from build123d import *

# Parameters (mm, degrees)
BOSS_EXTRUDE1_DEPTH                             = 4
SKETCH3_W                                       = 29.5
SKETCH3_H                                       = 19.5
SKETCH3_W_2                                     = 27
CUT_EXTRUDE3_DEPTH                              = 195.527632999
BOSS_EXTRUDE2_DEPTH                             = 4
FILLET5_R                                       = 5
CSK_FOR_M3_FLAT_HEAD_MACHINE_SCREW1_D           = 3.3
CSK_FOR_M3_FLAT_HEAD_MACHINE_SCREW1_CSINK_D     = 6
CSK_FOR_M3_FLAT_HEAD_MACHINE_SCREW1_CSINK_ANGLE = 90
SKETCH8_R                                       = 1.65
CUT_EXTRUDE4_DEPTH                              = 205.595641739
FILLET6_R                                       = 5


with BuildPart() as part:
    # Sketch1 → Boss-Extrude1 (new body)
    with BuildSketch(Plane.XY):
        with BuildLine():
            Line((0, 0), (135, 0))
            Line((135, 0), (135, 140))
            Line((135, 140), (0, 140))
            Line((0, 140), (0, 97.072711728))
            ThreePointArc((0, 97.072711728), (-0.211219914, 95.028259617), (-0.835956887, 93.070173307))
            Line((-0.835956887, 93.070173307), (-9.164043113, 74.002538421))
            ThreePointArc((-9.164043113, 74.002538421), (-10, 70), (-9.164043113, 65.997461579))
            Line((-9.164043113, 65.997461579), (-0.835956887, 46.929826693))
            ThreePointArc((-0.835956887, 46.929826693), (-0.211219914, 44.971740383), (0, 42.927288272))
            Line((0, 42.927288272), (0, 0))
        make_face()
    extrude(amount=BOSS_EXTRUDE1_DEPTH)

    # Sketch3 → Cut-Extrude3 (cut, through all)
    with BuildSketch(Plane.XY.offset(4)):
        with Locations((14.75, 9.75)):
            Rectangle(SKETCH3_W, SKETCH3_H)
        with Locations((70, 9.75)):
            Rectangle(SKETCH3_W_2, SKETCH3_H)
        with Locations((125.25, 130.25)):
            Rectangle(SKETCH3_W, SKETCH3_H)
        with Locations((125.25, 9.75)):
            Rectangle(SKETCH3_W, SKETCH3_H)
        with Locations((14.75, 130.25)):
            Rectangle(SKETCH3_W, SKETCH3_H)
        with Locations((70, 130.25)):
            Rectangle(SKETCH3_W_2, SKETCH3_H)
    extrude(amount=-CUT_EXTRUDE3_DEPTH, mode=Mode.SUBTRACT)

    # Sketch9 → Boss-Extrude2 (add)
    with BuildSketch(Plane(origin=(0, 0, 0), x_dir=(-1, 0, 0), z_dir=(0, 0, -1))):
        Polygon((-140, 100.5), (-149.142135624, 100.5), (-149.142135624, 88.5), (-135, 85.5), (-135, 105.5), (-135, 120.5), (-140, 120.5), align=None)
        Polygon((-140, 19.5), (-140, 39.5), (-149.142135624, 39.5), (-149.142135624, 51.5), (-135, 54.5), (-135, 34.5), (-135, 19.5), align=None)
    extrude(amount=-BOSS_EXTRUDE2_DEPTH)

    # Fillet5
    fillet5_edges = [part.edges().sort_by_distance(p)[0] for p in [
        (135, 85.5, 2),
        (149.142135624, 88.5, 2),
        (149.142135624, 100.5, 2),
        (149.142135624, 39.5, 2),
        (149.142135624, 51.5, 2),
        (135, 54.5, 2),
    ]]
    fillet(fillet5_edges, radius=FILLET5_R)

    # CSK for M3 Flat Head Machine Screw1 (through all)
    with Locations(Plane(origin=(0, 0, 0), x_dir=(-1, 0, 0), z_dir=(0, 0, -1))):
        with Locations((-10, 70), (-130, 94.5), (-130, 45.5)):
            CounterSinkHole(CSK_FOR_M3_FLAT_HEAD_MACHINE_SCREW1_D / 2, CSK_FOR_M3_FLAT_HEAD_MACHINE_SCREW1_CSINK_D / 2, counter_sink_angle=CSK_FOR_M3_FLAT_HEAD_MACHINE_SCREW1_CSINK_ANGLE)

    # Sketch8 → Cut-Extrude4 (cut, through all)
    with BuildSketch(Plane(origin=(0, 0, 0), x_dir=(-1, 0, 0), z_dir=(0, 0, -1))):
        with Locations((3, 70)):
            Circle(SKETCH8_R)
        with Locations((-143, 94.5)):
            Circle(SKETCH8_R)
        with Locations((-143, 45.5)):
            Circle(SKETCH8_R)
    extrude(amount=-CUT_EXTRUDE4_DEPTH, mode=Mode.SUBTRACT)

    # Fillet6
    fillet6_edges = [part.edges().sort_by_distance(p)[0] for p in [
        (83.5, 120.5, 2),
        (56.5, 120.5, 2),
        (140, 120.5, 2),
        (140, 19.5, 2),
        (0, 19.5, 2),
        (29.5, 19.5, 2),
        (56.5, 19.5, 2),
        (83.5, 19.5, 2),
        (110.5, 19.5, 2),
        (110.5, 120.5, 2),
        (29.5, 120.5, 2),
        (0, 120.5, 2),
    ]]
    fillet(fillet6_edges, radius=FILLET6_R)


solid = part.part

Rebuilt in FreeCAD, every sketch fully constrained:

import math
import FreeCAD as App
import Part
import Sketcher
from FreeCAD import Vector


def edges_at(feature, points):
    """Names of the edges that pass closest to the given points."""
    edges = feature.Shape.Edges
    near = lambda p: min(range(len(edges)), key=lambda i: edges[i].distToShape(Part.Vertex(*p))[0])
    return sorted({f"Edge{near(p) + 1}" for p in points})

doc = App.newDocument("Part")
body = doc.addObject("PartDesign::Body", "Body")

# Sketch on XY plane
sketch1 = body.newObject("Sketcher::SketchObject", "Sketch")
sketch1.AttachmentSupport = (doc.getObject("XY_Plane"), [""])
sketch1.MapMode = "FlatFace"
sketch1.addGeometry([
    Part.LineSegment(Vector(0, 0, 0), Vector(135, 0, 0)),  # 0
    Part.LineSegment(Vector(135, 0, 0), Vector(135, 140, 0)),  # 1
    Part.LineSegment(Vector(135, 140, 0), Vector(0, 140, 0)),  # 2
    Part.LineSegment(Vector(0, 140, 0), Vector(0, 97.1, 0)),  # 3
    Part.ArcOfCircle(Part.Circle(Vector(-10, 97.1, 0), Vector(0, 0, 1), 10), math.radians(-24), math.radians(0)),  # 4
    Part.LineSegment(Vector(-0.8, 93.1, 0), Vector(-9.2, 74, 0)),  # 5
    Part.ArcOfCircle(Part.Circle(Vector(0, 70, 0), Vector(0, 0, 1), 10), math.radians(156), math.radians(204)),  # 6
    Part.LineSegment(Vector(-9.2, 66, 0), Vector(-0.8, 46.9, 0)),  # 7
    Part.ArcOfCircle(Part.Circle(Vector(-10, 42.9, 0), Vector(0, 0, 1), 10), math.radians(0), math.radians(24)),  # 8
    Part.LineSegment(Vector(0, 42.9, 0), Vector(0, 0, 0)),  # 9
], False)
sketch1.addConstraint([
    Sketcher.Constraint("Coincident", 0, 2, 1, 1),
    Sketcher.Constraint("Coincident", 1, 2, 2, 1),
    Sketcher.Constraint("Coincident", 2, 2, 3, 1),
    Sketcher.Constraint("Tangent", 3, 2, 4, 2),
    Sketcher.Constraint("Tangent", 4, 1, 5, 1),
    Sketcher.Constraint("Tangent", 5, 2, 6, 1),
    Sketcher.Constraint("Tangent", 6, 2, 7, 1),
    Sketcher.Constraint("Tangent", 7, 2, 8, 2),
    Sketcher.Constraint("Tangent", 8, 1, 9, 1),
    Sketcher.Constraint("Coincident", 9, 2, 0, 1),
    Sketcher.Constraint("Horizontal", 0),
    Sketcher.Constraint("Vertical", 1),
    Sketcher.Constraint("Horizontal", 2),
    Sketcher.Constraint("Vertical", 3),
    Sketcher.Constraint("Vertical", 9),
    Sketcher.Constraint("Coincident", 9, 2, -1, 1),
    Sketcher.Constraint("Equal", 4, 6),
    Sketcher.Constraint("Equal", 6, 8),
    Sketcher.Constraint("PointOnObject", 6, 3, -2),
    Sketcher.Constraint("PointOnObject", 2, 2, -2),
    Sketcher.Constraint("Vertical", 5, 2, 6, 2),
    Sketcher.Constraint("Equal", 3, 9),
    Sketcher.Constraint("Radius", 4, 10.0),
    Sketcher.Constraint("DistanceX", 0, 1, 0, 2, 135.0),
    Sketcher.Constraint("DistanceY", 1, 1, 1, 2, 140.0),
    Sketcher.Constraint("DistanceY", 3, 2, 3, 1, 42.927288),
])
pad1 = body.newObject("PartDesign::Pad", "Pad")
pad1.Profile = sketch1
pad1.Length = 4

# Sketch on XY plane
sketch2 = body.newObject("Sketcher::SketchObject", "Sketch001")
sketch2.AttachmentSupport = (doc.getObject("XY_Plane"), [""])
sketch2.MapMode = "FlatFace"
sketch2.AttachmentOffset = App.Placement(Vector(0, 0, 4), App.Rotation())
sketch2.addGeometry([
    Part.LineSegment(Vector(0, 20, 0), Vector(0, 0, 0)),  # 0
    Part.LineSegment(Vector(0, 0, 0), Vector(30, 0, 0)),  # 1
    Part.LineSegment(Vector(30, 0, 0), Vector(30, 20, 0)),  # 2
    Part.LineSegment(Vector(30, 20, 0), Vector(0, 20, 0)),  # 3
    Part.LineSegment(Vector(56, 20, 0), Vector(56, 0, 0)),  # 4
    Part.LineSegment(Vector(56, 0, 0), Vector(84, 0, 0)),  # 5
    Part.LineSegment(Vector(84, 0, 0), Vector(84, 20, 0)),  # 6
    Part.LineSegment(Vector(84, 20, 0), Vector(56, 20, 0)),  # 7
    Part.LineSegment(Vector(110, 140, 0), Vector(110, 120, 0)),  # 8
    Part.LineSegment(Vector(110, 120, 0), Vector(140, 120, 0)),  # 9
    Part.LineSegment(Vector(140, 120, 0), Vector(140, 140, 0)),  # 10
    Part.LineSegment(Vector(140, 140, 0), Vector(110, 140, 0)),  # 11
    Part.LineSegment(Vector(110, 20, 0), Vector(110, 0, 0)),  # 12
    Part.LineSegment(Vector(110, 0, 0), Vector(140, 0, 0)),  # 13
    Part.LineSegment(Vector(140, 0, 0), Vector(140, 20, 0)),  # 14
    Part.LineSegment(Vector(140, 20, 0), Vector(110, 20, 0)),  # 15
    Part.LineSegment(Vector(0, 140, 0), Vector(0, 120, 0)),  # 16
    Part.LineSegment(Vector(0, 120, 0), Vector(30, 120, 0)),  # 17
    Part.LineSegment(Vector(30, 120, 0), Vector(30, 140, 0)),  # 18
    Part.LineSegment(Vector(30, 140, 0), Vector(0, 140, 0)),  # 19
    Part.LineSegment(Vector(56, 140, 0), Vector(56, 120, 0)),  # 20
    Part.LineSegment(Vector(56, 120, 0), Vector(84, 120, 0)),  # 21
    Part.LineSegment(Vector(84, 120, 0), Vector(84, 140, 0)),  # 22
    Part.LineSegment(Vector(84, 140, 0), Vector(56, 140, 0)),  # 23
], False)
sketch2.addConstraint([
    Sketcher.Constraint("Coincident", 0, 2, 1, 1),
    Sketcher.Constraint("Coincident", 1, 2, 2, 1),
    Sketcher.Constraint("Coincident", 2, 2, 3, 1),
    Sketcher.Constraint("Coincident", 3, 2, 0, 1),
    Sketcher.Constraint("Coincident", 4, 2, 5, 1),
    Sketcher.Constraint("Coincident", 5, 2, 6, 1),
    Sketcher.Constraint("Coincident", 6, 2, 7, 1),
    Sketcher.Constraint("Coincident", 7, 2, 4, 1),
    Sketcher.Constraint("Coincident", 8, 2, 9, 1),
    Sketcher.Constraint("Coincident", 9, 2, 10, 1),
    Sketcher.Constraint("Coincident", 10, 2, 11, 1),
    Sketcher.Constraint("Coincident", 11, 2, 8, 1),
    Sketcher.Constraint("Coincident", 12, 2, 13, 1),
    Sketcher.Constraint("Coincident", 13, 2, 14, 1),
    Sketcher.Constraint("Coincident", 14, 2, 15, 1),
    Sketcher.Constraint("Coincident", 15, 2, 12, 1),
    Sketcher.Constraint("Coincident", 16, 2, 17, 1),
    Sketcher.Constraint("Coincident", 17, 2, 18, 1),
    Sketcher.Constraint("Coincident", 18, 2, 19, 1),
    Sketcher.Constraint("Coincident", 19, 2, 16, 1),
    Sketcher.Constraint("Coincident", 20, 2, 21, 1),
    Sketcher.Constraint("Coincident", 21, 2, 22, 1),
    Sketcher.Constraint("Coincident", 22, 2, 23, 1),
    Sketcher.Constraint("Coincident", 23, 2, 20, 1),
    Sketcher.Constraint("Vertical", 0),
    Sketcher.Constraint("Horizontal", 1),
    Sketcher.Constraint("Vertical", 2),
    Sketcher.Constraint("Horizontal", 3),
    Sketcher.Constraint("Vertical", 4),
    Sketcher.Constraint("Horizontal", 5),
    Sketcher.Constraint("Vertical", 6),
    Sketcher.Constraint("Horizontal", 7),
    Sketcher.Constraint("Vertical", 8),
    Sketcher.Constraint("Horizontal", 9),
    Sketcher.Constraint("Vertical", 10),
    Sketcher.Constraint("Horizontal", 11),
    Sketcher.Constraint("Vertical", 12),
    Sketcher.Constraint("Horizontal", 13),
    Sketcher.Constraint("Vertical", 14),
    Sketcher.Constraint("Horizontal", 15),
    Sketcher.Constraint("Vertical", 16),
    Sketcher.Constraint("Horizontal", 17),
    Sketcher.Constraint("Vertical", 18),
    Sketcher.Constraint("Horizontal", 19),
    Sketcher.Constraint("Vertical", 20),
    Sketcher.Constraint("Horizontal", 21),
    Sketcher.Constraint("Vertical", 22),
    Sketcher.Constraint("Horizontal", 23),
    Sketcher.Constraint("Coincident", 0, 2, -1, 1),
    Sketcher.Constraint("PointOnObject", 4, 2, -1),
    Sketcher.Constraint("PointOnObject", 12, 2, -1),
    Sketcher.Constraint("PointOnObject", 16, 2, -2),
    Sketcher.Constraint("Horizontal", 3, 2, 6, 2),
    Sketcher.Constraint("Horizontal", 7, 2, 14, 2),
    Sketcher.Constraint("Horizontal", 9, 2, 16, 2),
    Sketcher.Constraint("Horizontal", 11, 2, 18, 2),
    Sketcher.Constraint("Horizontal", 17, 2, 20, 2),
    Sketcher.Constraint("Horizontal", 19, 2, 22, 2),
    Sketcher.Constraint("Vertical", 11, 2, 12, 2),
    Sketcher.Constraint("Vertical", 10, 2, 13, 2),
    Sketcher.Constraint("Vertical", 2, 2, 17, 2),
    Sketcher.Constraint("Vertical", 7, 2, 20, 2),
    Sketcher.Constraint("Vertical", 6, 2, 21, 2),
    Sketcher.Constraint("Equal", 3, 9),
    Sketcher.Constraint("Equal", 6, 8),
    Sketcher.Constraint("DistanceX", 5, 1, 5, 2, 27.0),
    Sketcher.Constraint("DistanceX", 1, 1, 1, 2, 29.5),
    Sketcher.Constraint("DistanceY", 0, 2, 0, 1, 19.5),
    Sketcher.Constraint("DistanceX", -1, 1, 9, 2, 140.0),
    Sketcher.Constraint("DistanceY", -1, 1, 10, 2, 140.0),
    Sketcher.Constraint("DistanceX", 1, 2, 4, 2, 27.0),
])
pocket1 = body.newObject("PartDesign::Pocket", "Pocket")
pocket1.Profile = sketch2
pocket1.Type = "ThroughAll"

# Sketch on XY plane
sketch3 = body.newObject("Sketcher::SketchObject", "Sketch002")
sketch3.AttachmentSupport = (doc.getObject("XY_Plane"), [""])
sketch3.MapMode = "FlatFace"
sketch3.addGeometry([
    Part.LineSegment(Vector(140, 100, 0), Vector(149, 100, 0)),  # 0
    Part.LineSegment(Vector(149, 100, 0), Vector(149, 88, 0)),  # 1
    Part.LineSegment(Vector(149, 88, 0), Vector(135, 86, 0)),  # 2
    Part.LineSegment(Vector(135, 86, 0), Vector(135, 120, 0)),  # 3
    Part.LineSegment(Vector(135, 120, 0), Vector(140, 120, 0)),  # 4
    Part.LineSegment(Vector(140, 120, 0), Vector(140, 100, 0)),  # 5
    Part.LineSegment(Vector(140, 40, 0), Vector(140, 20, 0)),  # 6
    Part.LineSegment(Vector(140, 20, 0), Vector(135, 20, 0)),  # 7
    Part.LineSegment(Vector(135, 20, 0), Vector(135, 54, 0)),  # 8
    Part.LineSegment(Vector(135, 54, 0), Vector(149, 52, 0)),  # 9
    Part.LineSegment(Vector(149, 52, 0), Vector(149, 40, 0)),  # 10
    Part.LineSegment(Vector(149, 40, 0), Vector(140, 40, 0)),  # 11
], False)
sketch3.addConstraint([
    Sketcher.Constraint("Coincident", 0, 2, 1, 1),
    Sketcher.Constraint("Coincident", 1, 2, 2, 1),
    Sketcher.Constraint("Coincident", 2, 2, 3, 1),
    Sketcher.Constraint("Coincident", 3, 2, 4, 1),
    Sketcher.Constraint("Coincident", 4, 2, 5, 1),
    Sketcher.Constraint("Coincident", 5, 2, 0, 1),
    Sketcher.Constraint("Coincident", 6, 2, 7, 1),
    Sketcher.Constraint("Coincident", 7, 2, 8, 1),
    Sketcher.Constraint("Coincident", 8, 2, 9, 1),
    Sketcher.Constraint("Coincident", 9, 2, 10, 1),
    Sketcher.Constraint("Coincident", 10, 2, 11, 1),
    Sketcher.Constraint("Coincident", 11, 2, 6, 1),
    Sketcher.Constraint("Horizontal", 0),
    Sketcher.Constraint("Vertical", 1),
    Sketcher.Constraint("Vertical", 3),
    Sketcher.Constraint("Horizontal", 4),
    Sketcher.Constraint("Vertical", 5),
    Sketcher.Constraint("Vertical", 6),
    Sketcher.Constraint("Horizontal", 7),
    Sketcher.Constraint("Vertical", 8),
    Sketcher.Constraint("Vertical", 10),
    Sketcher.Constraint("Horizontal", 11),
    Sketcher.Constraint("Vertical", 5, 2, 6, 2),
    Sketcher.Constraint("Vertical", 3, 2, 7, 2),
    Sketcher.Constraint("Vertical", 1, 2, 9, 2),
    Sketcher.Constraint("Equal", 5, 6),
    Sketcher.Constraint("Equal", 3, 8),
    Sketcher.Constraint("Equal", 1, 10),
    Sketcher.Constraint("DistanceX", 4, 1, 4, 2, 5.0),
    Sketcher.Constraint("DistanceY", 1, 2, 1, 1, 12.0),
    Sketcher.Constraint("DistanceY", 3, 1, 3, 2, 35.0),
    Sketcher.Constraint("DistanceY", 5, 2, 5, 1, 20.0),
    Sketcher.Constraint("DistanceX", -1, 1, 2, 2, 135.0),
    Sketcher.Constraint("DistanceY", 6, 2, 2, 2, 66.0),
    Sketcher.Constraint("DistanceY", -1, 1, 0, 2, 100.5),
    Sketcher.Constraint("DistanceX", 0, 1, 0, 2, 9.142136),
])
pad2 = body.newObject("PartDesign::Pad", "Pad001")
pad2.Profile = sketch3
pad2.Length = 4
doc.recompute()

fillet = body.newObject("PartDesign::Fillet", "Fillet")
fillet.Base = (pad2, edges_at(pad2, [
    (135, 85.5, 2),
    (149.142, 88.5, 2),
    (149.142, 100.5, 2),
    (149.142, 39.5, 2),
    (149.142, 51.5, 2),
    (135, 54.5, 2),
]))
fillet.Radius = 5

# Sketch on XY plane
sketch4 = body.newObject("Sketcher::SketchObject", "Sketch003")
sketch4.AttachmentSupport = (doc.getObject("XY_Plane"), [""])
sketch4.MapMode = "FlatFace"
sketch4.addGeometry([
    Part.Circle(Vector(10, 70, 0), Vector(0, 0, 1), 1.6),
    Part.Circle(Vector(130, 94.5, 0), Vector(0, 0, 1), 1.6),
    Part.Circle(Vector(130, 45.5, 0), Vector(0, 0, 1), 1.6),
], False)
sketch4.addConstraint([
    Sketcher.Constraint("Equal", 0, 1),
    Sketcher.Constraint("Equal", 1, 2),
    Sketcher.Constraint("Vertical", 1, 3, 2, 3),
    Sketcher.Constraint("Diameter", 0, 3.3),
    Sketcher.Constraint("DistanceX", -1, 1, 0, 3, 10.0),
    Sketcher.Constraint("DistanceY", -1, 1, 0, 3, 70.0),
    Sketcher.Constraint("DistanceX", -1, 1, 1, 3, 130.0),
    Sketcher.Constraint("DistanceY", 2, 3, 1, 3, 49.0),
    Sketcher.Constraint("DistanceY", -1, 1, 1, 3, 94.5),
])
doc.recompute()
hole = body.newObject("PartDesign::Hole", "Hole")
hole.Profile = sketch4
hole.ThreadType = "None"
hole.Diameter = 3.3
hole.DepthType = "ThroughAll"
hole.HoleCutType = "Countersink"
hole.HoleCutDiameter = 6
hole.HoleCutCountersinkAngle = 90
hole.Reversed = True

# Sketch on XY plane
sketch5 = body.newObject("Sketcher::SketchObject", "Sketch004")
sketch5.AttachmentSupport = (doc.getObject("XY_Plane"), [""])
sketch5.MapMode = "FlatFace"
sketch5.addGeometry([
    Part.Circle(Vector(-3, 70, 0), Vector(0, 0, 1), 1.6),
    Part.Circle(Vector(143, 94.5, 0), Vector(0, 0, 1), 1.6),
    Part.Circle(Vector(143, 45.5, 0), Vector(0, 0, 1), 1.6),
], False)
sketch5.addConstraint([
    Sketcher.Constraint("Equal", 0, 1),
    Sketcher.Constraint("Equal", 1, 2),
    Sketcher.Constraint("Vertical", 1, 3, 2, 3),
    Sketcher.Constraint("Diameter", 0, 3.3),
    Sketcher.Constraint("DistanceX", 0, 3, -1, 1, 3.0),
    Sketcher.Constraint("DistanceY", -1, 1, 0, 3, 70.0),
    Sketcher.Constraint("DistanceX", -1, 1, 1, 3, 143.0),
    Sketcher.Constraint("DistanceY", 2, 3, 1, 3, 49.0),
    Sketcher.Constraint("DistanceY", -1, 1, 1, 3, 94.5),
])
pocket2 = body.newObject("PartDesign::Pocket", "Pocket001")
pocket2.Profile = sketch5
pocket2.Type = "ThroughAll"
pocket2.Reversed = True
doc.recompute()

fillet2 = body.newObject("PartDesign::Fillet", "Fillet001")
fillet2.Base = (pocket2, edges_at(pocket2, [
    (83.5, 120.5, 2),
    (56.5, 120.5, 2),
    (140, 120.5, 2),
    (140, 19.5, 2),
    (0, 19.5, 2),
    (29.5, 19.5, 2),
    (56.5, 19.5, 2),
    (83.5, 19.5, 2),
    (110.5, 19.5, 2),
    (110.5, 120.5, 2),
    (29.5, 120.5, 2),
    (0, 120.5, 2),
]))
fillet2.Radius = 5

doc.recompute()
